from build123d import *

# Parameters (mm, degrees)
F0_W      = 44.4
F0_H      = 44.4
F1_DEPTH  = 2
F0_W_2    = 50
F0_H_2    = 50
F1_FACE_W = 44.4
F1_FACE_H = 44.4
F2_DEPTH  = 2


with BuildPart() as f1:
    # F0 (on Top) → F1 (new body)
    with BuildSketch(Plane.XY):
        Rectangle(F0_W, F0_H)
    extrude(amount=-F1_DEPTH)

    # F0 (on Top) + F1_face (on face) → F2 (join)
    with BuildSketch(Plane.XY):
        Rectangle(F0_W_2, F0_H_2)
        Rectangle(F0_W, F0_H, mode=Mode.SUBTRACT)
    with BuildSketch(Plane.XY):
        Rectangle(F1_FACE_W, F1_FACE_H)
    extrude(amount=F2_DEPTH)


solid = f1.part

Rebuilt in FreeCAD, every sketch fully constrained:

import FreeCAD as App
import Part
import Sketcher
Q = App.Units.Quantity


def add_polygon(sketch, points):
    """Adds a closed chain of lines whose ends are joined by coincident constraints."""
    first, n = sketch.GeometryCount, len(points)
    for a, b in zip(points, points[1:] + points[:1]):
        sketch.addGeometry(Part.LineSegment(App.Vector(*a, 0), App.Vector(*b, 0)), False)
    for i in range(n):
        sketch.addConstraint(Sketcher.Constraint("Coincident", first + i, 2, first + (i + 1) % n, 1))

doc = App.newDocument("Part")
body = doc.addObject("PartDesign::Body", "Body")

# Sketch on XY plane
sketch1 = body.newObject("Sketcher::SketchObject", "Sketch")
sketch1.AttachmentSupport = (doc.getObject("XY_Plane"), [""])
sketch1.MapMode = "FlatFace"
add_polygon(sketch1, [(-22.2, 22.2), (-22.2, -22.2), (22.2, -22.2), (22.2, 22.2)])  # lines 0-3
sketch1.addConstraint([
    Sketcher.Constraint("Vertical", 0),
    Sketcher.Constraint("Horizontal", 1),
    Sketcher.Constraint("Vertical", 2),
    Sketcher.Constraint("Horizontal", 3),
    Sketcher.Constraint("Symmetric", 0, 2, 2, 2, -1, 1),
    Sketcher.Constraint("Equal", 3, 0),
    Sketcher.Constraint("DistanceX", 1, 1, 1, 2, Q("44.4 mm")),
])
pad1 = body.newObject("PartDesign::Pad", "Pad")
pad1.Profile = sketch1
pad1.Length = 2
pad1.Reversed = True

# Sketch on XY plane
sketch2 = body.newObject("Sketcher::SketchObject", "Sketch001")
sketch2.AttachmentSupport = (doc.getObject("XY_Plane"), [""])
sketch2.MapMode = "FlatFace"
add_polygon(sketch2, [(-25, 25), (-25, -25), (25, -25), (25, 25)])  # lines 0-3
sketch2.addConstraint([
    Sketcher.Constraint("Vertical", 0),
    Sketcher.Constraint("Horizontal", 1),
    Sketcher.Constraint("Vertical", 2),
    Sketcher.Constraint("Horizontal", 3),
    Sketcher.Constraint("Symmetric", 0, 2, 2, 2, -1, 1),
    Sketcher.Constraint("Equal", 3, 0),
    Sketcher.Constraint("DistanceX", 1, 1, 1, 2, Q("50 mm")),
])
pad2 = body.newObject("PartDesign::Pad", "Pad001")
pad2.Profile = sketch2
pad2.Length = 2

doc.recompute()
